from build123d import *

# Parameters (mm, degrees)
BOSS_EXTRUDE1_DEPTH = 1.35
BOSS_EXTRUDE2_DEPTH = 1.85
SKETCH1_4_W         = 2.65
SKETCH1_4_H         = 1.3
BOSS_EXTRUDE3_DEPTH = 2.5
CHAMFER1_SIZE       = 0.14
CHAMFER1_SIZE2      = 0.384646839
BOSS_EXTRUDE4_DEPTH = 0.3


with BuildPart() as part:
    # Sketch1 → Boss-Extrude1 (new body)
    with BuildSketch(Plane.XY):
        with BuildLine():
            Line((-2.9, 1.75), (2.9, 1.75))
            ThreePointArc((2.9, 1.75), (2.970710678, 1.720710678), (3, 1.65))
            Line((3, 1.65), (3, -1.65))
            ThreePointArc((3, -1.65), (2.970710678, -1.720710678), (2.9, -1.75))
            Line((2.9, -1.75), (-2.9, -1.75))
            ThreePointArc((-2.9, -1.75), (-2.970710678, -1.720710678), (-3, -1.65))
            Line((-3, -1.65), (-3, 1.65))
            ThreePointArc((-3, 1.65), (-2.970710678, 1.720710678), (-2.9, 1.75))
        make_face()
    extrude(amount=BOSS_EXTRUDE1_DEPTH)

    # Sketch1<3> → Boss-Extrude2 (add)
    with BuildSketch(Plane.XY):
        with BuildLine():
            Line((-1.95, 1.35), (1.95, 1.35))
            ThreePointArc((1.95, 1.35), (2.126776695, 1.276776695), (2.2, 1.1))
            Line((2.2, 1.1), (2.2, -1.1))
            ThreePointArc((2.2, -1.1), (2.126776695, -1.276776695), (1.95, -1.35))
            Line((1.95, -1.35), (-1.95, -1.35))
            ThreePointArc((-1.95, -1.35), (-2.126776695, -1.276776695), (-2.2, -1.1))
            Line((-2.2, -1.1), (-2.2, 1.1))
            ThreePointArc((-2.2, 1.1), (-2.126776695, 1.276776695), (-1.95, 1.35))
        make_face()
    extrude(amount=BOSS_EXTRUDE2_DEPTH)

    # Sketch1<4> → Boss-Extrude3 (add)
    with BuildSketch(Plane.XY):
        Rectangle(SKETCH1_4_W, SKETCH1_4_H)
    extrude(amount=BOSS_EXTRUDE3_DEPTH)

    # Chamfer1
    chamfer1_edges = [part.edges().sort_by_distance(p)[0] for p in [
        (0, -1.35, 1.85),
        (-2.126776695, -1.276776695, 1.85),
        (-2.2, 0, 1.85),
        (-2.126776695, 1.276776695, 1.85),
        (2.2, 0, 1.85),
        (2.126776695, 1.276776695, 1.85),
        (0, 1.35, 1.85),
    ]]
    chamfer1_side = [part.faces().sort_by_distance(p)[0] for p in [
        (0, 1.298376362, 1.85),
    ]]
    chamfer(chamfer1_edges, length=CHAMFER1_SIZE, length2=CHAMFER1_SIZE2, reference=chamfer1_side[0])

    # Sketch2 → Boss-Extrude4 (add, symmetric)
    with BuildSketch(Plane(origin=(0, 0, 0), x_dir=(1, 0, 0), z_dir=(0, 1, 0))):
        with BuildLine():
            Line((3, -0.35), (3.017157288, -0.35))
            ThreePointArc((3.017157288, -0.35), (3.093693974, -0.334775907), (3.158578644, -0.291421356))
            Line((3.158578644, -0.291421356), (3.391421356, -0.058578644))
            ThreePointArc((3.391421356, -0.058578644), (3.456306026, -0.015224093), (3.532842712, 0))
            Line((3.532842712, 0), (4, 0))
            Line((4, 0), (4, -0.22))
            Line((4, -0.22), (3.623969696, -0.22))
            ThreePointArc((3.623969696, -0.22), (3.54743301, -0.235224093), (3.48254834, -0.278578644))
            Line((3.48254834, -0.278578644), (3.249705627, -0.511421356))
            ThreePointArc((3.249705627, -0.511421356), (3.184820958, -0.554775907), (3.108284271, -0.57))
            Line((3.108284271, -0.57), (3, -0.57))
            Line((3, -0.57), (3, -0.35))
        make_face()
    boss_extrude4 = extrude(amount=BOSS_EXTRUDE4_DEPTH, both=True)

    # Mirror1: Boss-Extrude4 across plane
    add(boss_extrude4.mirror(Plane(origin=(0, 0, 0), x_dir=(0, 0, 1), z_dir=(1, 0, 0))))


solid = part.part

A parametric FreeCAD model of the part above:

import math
import FreeCAD as App
import Part
import Sketcher
Q = App.Units.Quantity


def edges_at(feature, points):
    """Names of the edges that pass closest to the given points."""
    edges = feature.Shape.Edges
    near = lambda p: min(range(len(edges)), key=lambda i: edges[i].distToShape(Part.Vertex(*p))[0])
    return sorted({f"Edge{near(p) + 1}" for p in points})

doc = App.newDocument("Part")
body = doc.addObject("PartDesign::Body", "Body")

sketch1 = body.newObject("Sketcher::SketchObject", "Sketch")
sketch1.AttachmentSupport = (doc.getObject("XY_Plane"), [""])
sketch1.MapMode = "FlatFace"
sketch1.addGeometry(Part.LineSegment(App.Vector(2.9, 1.75, 0), App.Vector(-2.9, 1.75, 0)), False)
sketch1.addGeometry(Part.ArcOfCircle(Part.Circle(App.Vector(-2.9, 1.65, 0), App.Vector(0, 0, 1), 0.1), math.radians(90), math.radians(180)), False)
sketch1.addGeometry(Part.LineSegment(App.Vector(-3, 1.65, 0), App.Vector(-3, -1.65, 0)), False)
sketch1.addGeometry(Part.ArcOfCircle(Part.Circle(App.Vector(-2.9, -1.65, 0), App.Vector(0, 0, 1), 0.1), math.radians(180), math.radians(270)), False)
sketch1.addGeometry(Part.LineSegment(App.Vector(-2.9, -1.75, 0), App.Vector(2.9, -1.75, 0)), False)
sketch1.addGeometry(Part.ArcOfCircle(Part.Circle(App.Vector(2.9, -1.65, 0), App.Vector(0, 0, 1), 0.1), math.radians(-90), math.radians(0)), False)
sketch1.addGeometry(Part.LineSegment(App.Vector(3, -1.65, 0), App.Vector(3, 1.65, 0)), False)
sketch1.addGeometry(Part.ArcOfCircle(Part.Circle(App.Vector(2.9, 1.65, 0), App.Vector(0, 0, 1), 0.1), math.radians(0), math.radians(90)), False)
sketch1.addConstraint(Sketcher.Constraint("Tangent", 0, 2, 1, 1))
sketch1.addConstraint(Sketcher.Constraint("Tangent", 1, 2, 2, 1))
sketch1.addConstraint(Sketcher.Constraint("Tangent", 2, 2, 3, 1))
sketch1.addConstraint(Sketcher.Constraint("Tangent", 3, 2, 4, 1))
sketch1.addConstraint(Sketcher.Constraint("Tangent", 4, 2, 5, 1))
sketch1.addConstraint(Sketcher.Constraint("Tangent", 5, 2, 6, 1))
sketch1.addConstraint(Sketcher.Constraint("Tangent", 6, 2, 7, 1))
sketch1.addConstraint(Sketcher.Constraint("Tangent", 7, 2, 0, 1))
sketch1.addConstraint(Sketcher.Constraint("Horizontal", 0))
sketch1.addConstraint(Sketcher.Constraint("Vertical", 2))
sketch1.addConstraint(Sketcher.Constraint("Horizontal", 4))
sketch1.addConstraint(Sketcher.Constraint("Vertical", 6))
sketch1.addConstraint(Sketcher.Constraint("Equal", 1, 3))
sketch1.addConstraint(Sketcher.Constraint("Equal", 3, 5))
sketch1.addConstraint(Sketcher.Constraint("Equal", 5, 7))
sketch1.addConstraint(Sketcher.Constraint("Symmetric", 1, 3, 5, 3, -1, 1))
sketch1.addConstraint(Sketcher.Constraint("Radius", 1, Q("0.1 mm")))
sketch1.addConstraint(Sketcher.Constraint("DistanceX", 0, 2, 0, 1, Q("5.8 mm")))
sketch1.addConstraint(Sketcher.Constraint("DistanceY", 2, 2, 2, 1, Q("3.3 mm")))
pad1 = body.newObject("PartDesign::Pad", "Pad")
pad1.Profile = sketch1
pad1.Length = 1.35

sketch2 = body.newObject("Sketcher::SketchObject", "Sketch001")
sketch2.AttachmentSupport = (doc.getObject("XY_Plane"), [""])
sketch2.MapMode = "FlatFace"
sketch2.addGeometry(Part.LineSegment(App.Vector(1.95, 1.35, 0), App.Vector(-1.95, 1.35, 0)), False)
sketch2.addGeometry(Part.ArcOfCircle(Part.Circle(App.Vector(-1.95, 1.1, 0), App.Vector(0, 0, 1), 0.25), math.radians(90), math.radians(180)), False)
sketch2.addGeometry(Part.LineSegment(App.Vector(-2.2, 1.1, 0), App.Vector(-2.2, -1.1, 0)), False)
sketch2.addGeometry(Part.ArcOfCircle(Part.Circle(App.Vector(-1.95, -1.1, 0), App.Vector(0, 0, 1), 0.25), math.radians(-180), math.radians(-90)), False)
sketch2.addGeometry(Part.LineSegment(App.Vector(-1.95, -1.35, 0), App.Vector(1.95, -1.35, 0)), False)
sketch2.addGeometry(Part.ArcOfCircle(Part.Circle(App.Vector(1.95, -1.1, 0), App.Vector(0, 0, 1), 0.25), math.radians(-90), math.radians(0)), False)
sketch2.addGeometry(Part.LineSegment(App.Vector(2.2, -1.1, 0), App.Vector(2.2, 1.1, 0)), False)
sketch2.addGeometry(Part.ArcOfCircle(Part.Circle(App.Vector(1.95, 1.1, 0), App.Vector(0, 0, 1), 0.25), math.radians(0), math.radians(90)), False)
sketch2.addConstraint(Sketcher.Constraint("Tangent", 0, 2, 1, 1))
sketch2.addConstraint(Sketcher.Constraint("Tangent", 1, 2, 2, 1))
sketch2.addConstraint(Sketcher.Constraint("Tangent", 2, 2, 3, 1))
sketch2.addConstraint(Sketcher.Constraint("Tangent", 3, 2, 4, 1))
sketch2.addConstraint(Sketcher.Constraint("Tangent", 4, 2, 5, 1))
sketch2.addConstraint(Sketcher.Constraint("Tangent", 5, 2, 6, 1))
sketch2.addConstraint(Sketcher.Constraint("Tangent", 6, 2, 7, 1))
sketch2.addConstraint(Sketcher.Constraint("Tangent", 7, 2, 0, 1))
sketch2.addConstraint(Sketcher.Constraint("Horizontal", 0))
sketch2.addConstraint(Sketcher.Constraint("Vertical", 2))
sketch2.addConstraint(Sketcher.Constraint("Horizontal", 4))
sketch2.addConstraint(Sketcher.Constraint("Vertical", 6))
sketch2.addConstraint(Sketcher.Constraint("Equal", 1, 3))
sketch2.addConstraint(Sketcher.Constraint("Equal", 3, 5))
sketch2.addConstraint(Sketcher.Constraint("Equal", 5, 7))
sketch2.addConstraint(Sketcher.Constraint("Symmetric", 1, 3, 5, 3, -1, 1))
sketch2.addConstraint(Sketcher.Constraint("Radius", 1, Q("0.25 mm")))
sketch2.addConstraint(Sketcher.Constraint("DistanceX", 0, 2, 0, 1, Q("3.9 mm")))
sketch2.addConstraint(Sketcher.Constraint("DistanceY", 2, 2, 2, 1, Q("2.2 mm")))
pad2 = body.newObject("PartDesign::Pad", "Pad001")
pad2.Profile = sketch2
pad2.Length = 1.85

sketch3 = body.newObject("Sketcher::SketchObject", "Sketch002")
sketch3.AttachmentSupport = (doc.getObject("XY_Plane"), [""])
sketch3.MapMode = "FlatFace"
sketch3.addGeometry(Part.LineSegment(App.Vector(-1.3, 0.7, 0), App.Vector(-1.3, -0.7, 0)), False)
sketch3.addGeometry(Part.LineSegment(App.Vector(-1.3, -0.7, 0), App.Vector(1.3, -0.7, 0)), False)
sketch3.addGeometry(Part.LineSegment(App.Vector(1.3, -0.7, 0), App.Vector(1.3, 0.7, 0)), False)
sketch3.addGeometry(Part.LineSegment(App.Vector(1.3, 0.7, 0), App.Vector(-1.3, 0.7, 0)), False)
sketch3.addConstraint(Sketcher.Constraint("Coincident", 0, 2, 1, 1))
sketch3.addConstraint(Sketcher.Constraint("Coincident", 1, 2, 2, 1))
sketch3.addConstraint(Sketcher.Constraint("Coincident", 2, 2, 3, 1))
sketch3.addConstraint(Sketcher.Constraint("Coincident", 3, 2, 0, 1))
sketch3.addConstraint(Sketcher.Constraint("Vertical", 0))
sketch3.addConstraint(Sketcher.Constraint("Horizontal", 1))
sketch3.addConstraint(Sketcher.Constraint("Vertical", 2))
sketch3.addConstraint(Sketcher.Constraint("Horizontal", 3))
sketch3.addConstraint(Sketcher.Constraint("Symmetric", 0, 2, 2, 2, -1, 1))
sketch3.addConstraint(Sketcher.Constraint("DistanceY", 0, 2, 0, 1, Q("1.3 mm")))
sketch3.addConstraint(Sketcher.Constraint("DistanceX", 1, 1, 1, 2, Q("2.65 mm")))
pad3 = body.newObject("PartDesign::Pad", "Pad002")
pad3.Profile = sketch3
pad3.Length = 2.5
doc.recompute()

chamfer = body.newObject("PartDesign::Chamfer", "Chamfer")
chamfer.Base = (pad3, edges_at(pad3, [
    (0, -1.35, 1.85),
    (-2.127, -1.277, 1.85),
    (-2.2, 0, 1.85),
    (-2.127, 1.277, 1.85),
    (2.2, 0, 1.85),
    (2.127, 1.277, 1.85),
    (0, 1.35, 1.85),
]))
chamfer.ChamferType = "Two distances"
chamfer.Size = 0.14
chamfer.Size2 = 0.384647
chamfer.FlipDirection = True

sketch4 = body.newObject("Sketcher::SketchObject", "Sketch003")
sketch4.AttachmentSupport = (doc.getObject("XZ_Plane"), [""])
sketch4.MapMode = "FlatFace"
sketch4.addGeometry(Part.LineSegment(App.Vector(3.017, 0.35, 0), App.Vector(3, 0.35, 0)), False)
sketch4.addGeometry(Part.LineSegment(App.Vector(3, 0.35, 0), App.Vector(3, 0.57, 0)), False)
sketch4.addGeometry(Part.LineSegment(App.Vector(3, 0.57, 0), App.Vector(3.108, 0.57, 0)), False)
sketch4.addGeometry(Part.ArcOfCircle(Part.Circle(App.Vector(3.108, 0.37, 0), App.Vector(0, 0, 1), 0.2), math.radians(45), math.radians(90)), False)
sketch4.addGeometry(Part.LineSegment(App.Vector(3.25, 0.511, 0), App.Vector(3.483, 0.279, 0)), False)
sketch4.addGeometry(Part.ArcOfCircle(Part.Circle(App.Vector(3.624, 0.42, 0), App.Vector(0, 0, 1), 0.2), math.radians(-135), math.radians(-90)), False)
sketch4.addGeometry(Part.LineSegment(App.Vector(3.624, 0.22, 0), App.Vector(4, 0.22, 0)), False)
sketch4.addGeometry(Part.LineSegment(App.Vector(4, 0.22, 0), App.Vector(4, 0, 0)), False)
sketch4.addGeometry(Part.LineSegment(App.Vector(4, 0, 0), App.Vector(3.533, 0, 0)), False)
sketch4.addGeometry(Part.ArcOfCircle(Part.Circle(App.Vector(3.533, 0.2, 0), App.Vector(0, 0, 1), 0.2), math.radians(-135), math.radians(-90)), False)
sketch4.addGeometry(Part.LineSegment(App.Vector(3.391, 0.059, 0), App.Vector(3.159, 0.291, 0)), False)
sketch4.addGeometry(Part.ArcOfCircle(Part.Circle(App.Vector(3.017, 0.15, 0), App.Vector(0, 0, 1), 0.2), math.radians(45), math.radians(90)), False)
sketch4.addConstraint(Sketcher.Constraint("Coincident", 0, 2, 1, 1))
sketch4.addConstraint(Sketcher.Constraint("Coincident", 1, 2, 2, 1))
sketch4.addConstraint(Sketcher.Constraint("Tangent", 2, 2, 3, 2))
sketch4.addConstraint(Sketcher.Constraint("Tangent", 3, 1, 4, 1))
sketch4.addConstraint(Sketcher.Constraint("Tangent", 4, 2, 5, 1))
sketch4.addConstraint(Sketcher.Constraint("Tangent", 5, 2, 6, 1))
sketch4.addConstraint(Sketcher.Constraint("Coincident", 6, 2, 7, 1))
sketch4.addConstraint(Sketcher.Constraint("Coincident", 7, 2, 8, 1))
sketch4.addConstraint(Sketcher.Constraint("Tangent", 8, 2, 9, 2))
sketch4.addConstraint(Sketcher.Constraint("Tangent", 9, 1, 10, 1))
sketch4.addConstraint(Sketcher.Constraint("Tangent", 10, 2, 11, 1))
sketch4.addConstraint(Sketcher.Constraint("Tangent", 11, 2, 0, 1))
sketch4.addConstraint(Sketcher.Constraint("Horizontal", 0))
sketch4.addConstraint(Sketcher.Constraint("Vertical", 1))
sketch4.addConstraint(Sketcher.Constraint("Horizontal", 2))
sketch4.addConstraint(Sketcher.Constraint("Horizontal", 6))
sketch4.addConstraint(Sketcher.Constraint("Vertical", 7))
sketch4.addConstraint(Sketcher.Constraint("Horizontal", 8))
sketch4.addConstraint(Sketcher.Constraint("Equal", 3, 5))
sketch4.addConstraint(Sketcher.Constraint("Equal", 5, 9))
sketch4.addConstraint(Sketcher.Constraint("Equal", 9, 11))
sketch4.addConstraint(Sketcher.Constraint("PointOnObject", 7, 2, -1))
sketch4.addConstraint(Sketcher.Constraint("Parallel", 4, 10))
sketch4.addConstraint(Sketcher.Constraint("Equal", 1, 7))
sketch4.addConstraint(Sketcher.Constraint("Radius", 3, Q("0.2 mm")))
sketch4.addConstraint(Sketcher.Constraint("Angle", 4, Q("-45 deg")))
sketch4.addConstraint(Sketcher.Constraint("DistanceX", -1, 1, 0, 2, Q("3 mm")))
sketch4.addConstraint(Sketcher.Constraint("DistanceX", -1, 1, 6, 2, Q("4 mm")))
sketch4.addConstraint(Sketcher.Constraint("DistanceY", 1, 1, 1, 2, Q("0.22 mm")))
sketch4.addConstraint(Sketcher.Constraint("DistanceY", -1, 1, 3, 3, Q("0.37 mm")))
sketch4.addConstraint(Sketcher.Constraint("DistanceX", 6, 1, 6, 2, Q("0.37603 mm")))
sketch4.addConstraint(Sketcher.Constraint("DistanceX", 0, 2, 0, 1, Q("0.017157 mm")))
pad4 = body.newObject("PartDesign::Pad", "Pad003")
pad4.Profile = sketch4
pad4.Length = 0.6
pad4.Midplane = True
doc.recompute()

mirrored = body.newObject("PartDesign::Mirrored", "Mirrored")
mirrored.Originals = [pad4]
mirrored.MirrorPlane = (doc.getObject("YZ_Plane"), [""])
body.Tip = mirrored

doc.recompute()
